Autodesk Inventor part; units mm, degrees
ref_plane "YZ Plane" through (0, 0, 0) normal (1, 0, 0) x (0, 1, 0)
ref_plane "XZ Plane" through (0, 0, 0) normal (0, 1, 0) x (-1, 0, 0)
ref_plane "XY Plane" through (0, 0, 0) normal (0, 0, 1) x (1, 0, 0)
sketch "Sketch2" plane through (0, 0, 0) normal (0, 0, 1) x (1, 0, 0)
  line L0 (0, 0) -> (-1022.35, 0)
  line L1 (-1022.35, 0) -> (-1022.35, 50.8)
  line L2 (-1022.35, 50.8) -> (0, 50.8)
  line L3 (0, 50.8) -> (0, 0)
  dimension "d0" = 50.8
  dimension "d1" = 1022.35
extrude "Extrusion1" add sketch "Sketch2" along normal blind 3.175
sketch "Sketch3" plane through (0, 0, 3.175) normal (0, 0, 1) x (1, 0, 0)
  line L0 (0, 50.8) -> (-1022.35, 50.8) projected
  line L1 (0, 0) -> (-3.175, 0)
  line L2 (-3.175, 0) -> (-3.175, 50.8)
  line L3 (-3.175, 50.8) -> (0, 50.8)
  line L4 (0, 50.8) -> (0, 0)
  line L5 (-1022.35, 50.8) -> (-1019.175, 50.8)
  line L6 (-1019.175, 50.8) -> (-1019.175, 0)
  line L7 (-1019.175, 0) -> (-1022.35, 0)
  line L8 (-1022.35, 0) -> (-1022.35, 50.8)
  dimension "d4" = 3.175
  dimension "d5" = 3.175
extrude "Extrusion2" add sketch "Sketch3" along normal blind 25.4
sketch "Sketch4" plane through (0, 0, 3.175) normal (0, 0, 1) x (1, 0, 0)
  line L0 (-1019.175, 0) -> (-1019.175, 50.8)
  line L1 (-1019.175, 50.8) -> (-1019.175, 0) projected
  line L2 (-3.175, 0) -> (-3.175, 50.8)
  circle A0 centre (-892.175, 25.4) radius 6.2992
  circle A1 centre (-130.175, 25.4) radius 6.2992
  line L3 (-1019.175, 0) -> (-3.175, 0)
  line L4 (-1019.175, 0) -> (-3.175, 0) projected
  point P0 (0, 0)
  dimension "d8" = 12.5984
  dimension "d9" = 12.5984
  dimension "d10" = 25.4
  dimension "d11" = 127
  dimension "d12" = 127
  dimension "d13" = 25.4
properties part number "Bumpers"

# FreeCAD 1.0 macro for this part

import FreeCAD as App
import Part
import Sketcher
from FreeCAD import Vector
Q = App.Units.Quantity

doc = App.newDocument("Part")
params = doc.addObject("Spreadsheet::Sheet", "Params")
for row, (alias, value) in enumerate([
    ("sketch1_height", "2 in"),
    ("sketch1_width", "40.25 in"),
    ("pad1_length", "0.125 in"),
    ("sketch2_width", "0.125 in"),
    ("sketch2_height", "2 in"),
    ("pad2_length", "1 in"),
], start=1):
    params.set(f"A{row}", alias)
    params.set(f"B{row}", "=" + value)
    params.setAlias(f"B{row}", alias)

body = doc.addObject("PartDesign::Body", "Body")

# Sketch on XY plane
sketch1 = body.newObject("Sketcher::SketchObject", "Sketch")
sketch1.AttachmentSupport = (doc.getObject("XY_Plane"), [""])
sketch1.MapMode = "FlatFace"
sketch1.addGeometry([
    Part.LineSegment(Vector(-1022.35, 0, 0), Vector(0, 0, 0)),
    Part.LineSegment(Vector(0, 0, 0), Vector(0, 50.8, 0)),
    Part.LineSegment(Vector(0, 50.8, 0), Vector(-1022.35, 50.8, 0)),
    Part.LineSegment(Vector(-1022.35, 50.8, 0), Vector(-1022.35, 0, 0)),
], False)
sketch1.addConstraint([
    Sketcher.Constraint("Coincident", 0, 2, 1, 1),
    Sketcher.Constraint("Coincident", 1, 2, 2, 1),
    Sketcher.Constraint("Coincident", 2, 2, 3, 1),
    Sketcher.Constraint("Coincident", 3, 2, 0, 1),
    Sketcher.Constraint("Horizontal", 0),
    Sketcher.Constraint("Vertical", 1),
    Sketcher.Constraint("Horizontal", 2),
    Sketcher.Constraint("Vertical", 3),
    Sketcher.Constraint("Coincident", 0, 2, -1, 1),
    Sketcher.Constraint("DistanceY", 1, 1, 1, 2, Q("2 in")),
    Sketcher.Constraint("DistanceX", 0, 1, 0, 2, Q("40.25 in")),
])
sketch1.setExpression("Constraints[9]", "Params.sketch1_height")
sketch1.setExpression("Constraints[10]", "Params.sketch1_width")
pad1 = body.newObject("PartDesign::Pad", "Pad")
pad1.Profile = sketch1
pad1.setExpression("Length", "Params.pad1_length")

# Sketch on XY plane
sketch2 = body.newObject("Sketcher::SketchObject", "Sketch001")
sketch2.AttachmentSupport = (doc.getObject("XY_Plane"), [""])
sketch2.MapMode = "FlatFace"
sketch2.AttachmentOffset = App.Placement(Vector(0, 0, 0.125 * 25.4), App.Rotation())
sketch2.addGeometry([
    Part.LineSegment(Vector(0, 0, 0), Vector(0, 50.8, 0)),  # 0
    Part.LineSegment(Vector(0, 50.8, 0), Vector(-3.175, 50.8, 0)),  # 1
    Part.LineSegment(Vector(-3.175, 50.8, 0), Vector(-3.175, 0, 0)),  # 2
    Part.LineSegment(Vector(-3.175, 0, 0), Vector(0, 0, 0)),  # 3
    Part.LineSegment(Vector(-1019.175, 0, 0), Vector(-1019.175, 50.8, 0)),  # 4
    Part.LineSegment(Vector(-1019.175, 50.8, 0), Vector(-1022.35, 50.8, 0)),  # 5
    Part.LineSegment(Vector(-1022.35, 50.8, 0), Vector(-1022.35, 0, 0)),  # 6
    Part.LineSegment(Vector(-1022.35, 0, 0), Vector(-1019.175, 0, 0)),  # 7
], False)
sketch2.addConstraint([
    Sketcher.Constraint("Coincident", 0, 2, 1, 1),
    Sketcher.Constraint("Coincident", 1, 2, 2, 1),
    Sketcher.Constraint("Coincident", 2, 2, 3, 1),
    Sketcher.Constraint("Coincident", 3, 2, 0, 1),
    Sketcher.Constraint("Coincident", 4, 2, 5, 1),
    Sketcher.Constraint("Coincident", 5, 2, 6, 1),
    Sketcher.Constraint("Coincident", 6, 2, 7, 1),
    Sketcher.Constraint("Coincident", 7, 2, 4, 1),
    Sketcher.Constraint("Vertical", 0),
    Sketcher.Constraint("Horizontal", 1),
    Sketcher.Constraint("Vertical", 2),
    Sketcher.Constraint("Horizontal", 3),
    Sketcher.Constraint("Vertical", 4),
    Sketcher.Constraint("Horizontal", 5),
    Sketcher.Constraint("Vertical", 6),
    Sketcher.Constraint("Horizontal", 7),
    Sketcher.Constraint("Coincident", 3, 2, -1, 1),
    Sketcher.Constraint("PointOnObject", 6, 2, -1),
    Sketcher.Constraint("Horizontal", 1, 2, 4, 2),
    Sketcher.Constraint("Equal", 3, 5),
    Sketcher.Constraint("DistanceX", 1, 2, 1, 1, Q("0.125 in")),
    Sketcher.Constraint("DistanceY", 0, 1, 0, 2, Q("2 in")),
    Sketcher.Constraint("DistanceX", 4, 2, 1, 2, Q("40 in")),
])
sketch2.setExpression("Constraints[20]", "Params.sketch2_width")
sketch2.setExpression("Constraints[21]", "Params.sketch2_height")
pad2 = body.newObject("PartDesign::Pad", "Pad001")
pad2.Profile = sketch2
pad2.setExpression("Length", "Params.pad2_length")

doc.recompute()
